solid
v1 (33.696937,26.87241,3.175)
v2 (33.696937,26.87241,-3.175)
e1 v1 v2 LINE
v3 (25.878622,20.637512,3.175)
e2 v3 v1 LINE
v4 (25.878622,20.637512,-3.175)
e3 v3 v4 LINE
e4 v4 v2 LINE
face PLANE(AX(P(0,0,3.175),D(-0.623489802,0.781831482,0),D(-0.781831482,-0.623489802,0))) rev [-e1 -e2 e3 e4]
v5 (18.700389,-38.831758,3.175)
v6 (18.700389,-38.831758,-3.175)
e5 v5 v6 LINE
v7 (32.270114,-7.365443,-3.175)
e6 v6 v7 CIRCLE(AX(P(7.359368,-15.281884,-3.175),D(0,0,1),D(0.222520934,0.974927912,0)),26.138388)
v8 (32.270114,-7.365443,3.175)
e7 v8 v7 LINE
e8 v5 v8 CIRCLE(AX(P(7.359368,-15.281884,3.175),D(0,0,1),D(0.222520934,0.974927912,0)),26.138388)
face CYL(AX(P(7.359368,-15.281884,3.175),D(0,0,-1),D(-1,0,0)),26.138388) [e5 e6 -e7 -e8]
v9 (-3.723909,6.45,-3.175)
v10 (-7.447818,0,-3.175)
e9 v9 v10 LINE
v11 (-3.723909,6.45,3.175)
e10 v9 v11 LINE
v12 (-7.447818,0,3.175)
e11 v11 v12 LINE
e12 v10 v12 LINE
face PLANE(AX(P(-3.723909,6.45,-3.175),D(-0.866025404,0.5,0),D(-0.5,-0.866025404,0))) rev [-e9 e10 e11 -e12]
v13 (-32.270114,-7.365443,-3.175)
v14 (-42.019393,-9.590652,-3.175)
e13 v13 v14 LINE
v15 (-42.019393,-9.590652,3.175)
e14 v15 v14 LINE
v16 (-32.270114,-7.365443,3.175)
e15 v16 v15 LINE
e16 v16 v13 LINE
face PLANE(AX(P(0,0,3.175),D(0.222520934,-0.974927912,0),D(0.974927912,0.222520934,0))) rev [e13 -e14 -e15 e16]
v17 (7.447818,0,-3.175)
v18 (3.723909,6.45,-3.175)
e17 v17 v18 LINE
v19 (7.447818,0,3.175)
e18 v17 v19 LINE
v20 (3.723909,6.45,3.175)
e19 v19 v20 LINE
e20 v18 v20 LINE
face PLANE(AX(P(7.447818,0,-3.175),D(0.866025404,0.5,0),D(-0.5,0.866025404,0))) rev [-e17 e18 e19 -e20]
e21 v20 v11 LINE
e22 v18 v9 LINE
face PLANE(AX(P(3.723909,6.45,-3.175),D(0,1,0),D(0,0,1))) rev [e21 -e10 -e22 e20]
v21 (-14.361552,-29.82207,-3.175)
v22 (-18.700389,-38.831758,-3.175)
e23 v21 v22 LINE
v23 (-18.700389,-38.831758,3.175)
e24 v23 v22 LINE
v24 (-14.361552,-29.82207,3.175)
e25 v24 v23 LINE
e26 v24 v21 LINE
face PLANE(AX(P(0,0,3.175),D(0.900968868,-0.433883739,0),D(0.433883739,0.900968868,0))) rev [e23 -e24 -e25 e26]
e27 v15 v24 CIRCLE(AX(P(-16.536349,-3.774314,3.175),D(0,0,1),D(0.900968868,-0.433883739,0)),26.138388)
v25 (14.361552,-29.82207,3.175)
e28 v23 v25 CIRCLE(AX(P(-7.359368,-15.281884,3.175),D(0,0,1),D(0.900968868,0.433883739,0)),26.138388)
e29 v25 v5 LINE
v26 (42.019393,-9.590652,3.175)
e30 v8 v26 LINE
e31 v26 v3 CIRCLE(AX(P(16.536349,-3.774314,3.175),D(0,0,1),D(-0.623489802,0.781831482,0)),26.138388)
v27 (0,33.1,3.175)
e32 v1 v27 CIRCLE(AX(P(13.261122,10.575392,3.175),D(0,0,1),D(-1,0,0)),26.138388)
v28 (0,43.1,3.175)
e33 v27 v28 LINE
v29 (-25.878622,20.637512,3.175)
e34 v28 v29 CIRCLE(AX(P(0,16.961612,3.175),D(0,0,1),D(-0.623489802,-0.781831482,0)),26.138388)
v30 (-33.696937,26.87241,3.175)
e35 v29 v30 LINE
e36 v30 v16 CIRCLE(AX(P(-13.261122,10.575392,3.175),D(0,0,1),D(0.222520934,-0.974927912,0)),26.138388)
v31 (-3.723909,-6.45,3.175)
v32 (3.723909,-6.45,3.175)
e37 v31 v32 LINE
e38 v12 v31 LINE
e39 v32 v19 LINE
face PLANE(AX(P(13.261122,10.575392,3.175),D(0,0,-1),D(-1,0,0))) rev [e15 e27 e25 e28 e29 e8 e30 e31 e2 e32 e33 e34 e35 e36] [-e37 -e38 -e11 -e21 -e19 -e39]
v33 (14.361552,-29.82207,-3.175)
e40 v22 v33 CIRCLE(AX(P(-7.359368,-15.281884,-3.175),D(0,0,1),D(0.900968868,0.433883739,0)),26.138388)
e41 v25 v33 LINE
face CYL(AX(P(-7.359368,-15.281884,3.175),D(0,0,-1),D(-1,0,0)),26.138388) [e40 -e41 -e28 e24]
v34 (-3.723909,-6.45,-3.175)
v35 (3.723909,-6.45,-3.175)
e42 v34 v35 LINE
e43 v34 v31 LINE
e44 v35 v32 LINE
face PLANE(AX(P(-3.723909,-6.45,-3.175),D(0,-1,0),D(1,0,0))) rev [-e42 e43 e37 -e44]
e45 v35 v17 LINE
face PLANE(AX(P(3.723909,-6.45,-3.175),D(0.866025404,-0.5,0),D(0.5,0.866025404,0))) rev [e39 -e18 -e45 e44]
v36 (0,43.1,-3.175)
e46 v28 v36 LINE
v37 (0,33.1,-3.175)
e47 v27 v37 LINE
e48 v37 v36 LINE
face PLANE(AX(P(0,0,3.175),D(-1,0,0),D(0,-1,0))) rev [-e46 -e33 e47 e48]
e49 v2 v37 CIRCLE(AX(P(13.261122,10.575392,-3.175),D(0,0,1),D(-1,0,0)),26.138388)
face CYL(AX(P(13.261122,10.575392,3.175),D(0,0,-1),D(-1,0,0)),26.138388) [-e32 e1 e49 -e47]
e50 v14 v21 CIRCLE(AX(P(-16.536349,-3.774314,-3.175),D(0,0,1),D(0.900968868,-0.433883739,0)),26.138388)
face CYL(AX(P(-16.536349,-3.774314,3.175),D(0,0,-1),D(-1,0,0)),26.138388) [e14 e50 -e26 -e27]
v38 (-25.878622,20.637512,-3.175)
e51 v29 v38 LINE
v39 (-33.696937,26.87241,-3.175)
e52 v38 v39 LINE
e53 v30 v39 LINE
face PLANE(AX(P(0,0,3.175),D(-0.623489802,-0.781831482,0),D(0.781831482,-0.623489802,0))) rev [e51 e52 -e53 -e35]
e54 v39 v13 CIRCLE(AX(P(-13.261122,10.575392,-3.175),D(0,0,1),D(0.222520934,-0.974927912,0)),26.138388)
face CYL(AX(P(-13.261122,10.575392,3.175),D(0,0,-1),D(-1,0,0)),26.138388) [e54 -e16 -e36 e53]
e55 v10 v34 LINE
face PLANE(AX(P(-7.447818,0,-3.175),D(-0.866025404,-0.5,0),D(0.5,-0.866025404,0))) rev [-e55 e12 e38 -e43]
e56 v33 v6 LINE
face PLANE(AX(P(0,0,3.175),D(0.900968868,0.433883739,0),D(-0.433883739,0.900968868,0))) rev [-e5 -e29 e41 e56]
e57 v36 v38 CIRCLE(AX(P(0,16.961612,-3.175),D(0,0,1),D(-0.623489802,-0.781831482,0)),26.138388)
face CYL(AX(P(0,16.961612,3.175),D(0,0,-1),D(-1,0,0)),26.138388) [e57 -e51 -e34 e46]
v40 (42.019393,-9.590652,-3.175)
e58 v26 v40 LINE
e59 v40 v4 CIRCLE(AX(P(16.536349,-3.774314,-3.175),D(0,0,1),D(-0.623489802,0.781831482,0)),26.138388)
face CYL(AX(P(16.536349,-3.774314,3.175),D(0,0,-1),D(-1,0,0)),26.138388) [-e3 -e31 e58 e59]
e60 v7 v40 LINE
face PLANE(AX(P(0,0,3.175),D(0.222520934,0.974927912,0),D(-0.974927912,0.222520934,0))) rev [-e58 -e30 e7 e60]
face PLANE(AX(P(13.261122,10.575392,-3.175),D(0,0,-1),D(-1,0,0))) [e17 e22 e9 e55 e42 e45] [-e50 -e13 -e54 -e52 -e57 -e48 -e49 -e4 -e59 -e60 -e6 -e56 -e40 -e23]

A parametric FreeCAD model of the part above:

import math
import FreeCAD as App
import Part
import Sketcher
from FreeCAD import Vector
Q = App.Units.Quantity

doc = App.newDocument("Part")
body = doc.addObject("PartDesign::Body", "Body")

# Sketch on XY plane
sketch1 = doc.addObject("Sketcher::SketchObject", "Sketch")
body.addObject(sketch1)
sketch1.AttachmentSupport = (doc.XY_Plane, [""])
sketch1.MapMode = "FlatFace"
sketch1.addGeometry([
    Part.LineSegment(Vector(0, 33.1, 0), Vector(0, 0, 0)),
    Part.LineSegment(Vector(0, 0, 0), Vector(33.696937, 26.87241, 0)),
    Part.ArcOfCircle(Part.Circle(Vector(13.261122, 10.575392, 0), Vector(0, 0, 1), 26.138388), math.radians(38.571429), math.radians(120.486995)),
], False)
sketch1.addConstraint([
    Sketcher.Constraint("Coincident", 0, 2, 1, 1),
    Sketcher.Constraint("Coincident", 1, 2, 2, 1),
    Sketcher.Constraint("Coincident", 2, 2, 0, 1),
    Sketcher.Constraint("Vertical", 0),
    Sketcher.Constraint("Coincident", 0, 2, -1, 1),
    Sketcher.Constraint("DistanceY", 0, 2, 0, 1, 33.1),
    Sketcher.Constraint("Distance", 1, 43.1),
    Sketcher.Constraint("Radius", 2, 26.138388),
    Sketcher.Constraint("DistanceY", -1, 1, 1, 2, 26.87241),
])
pad1 = doc.addObject("PartDesign::Pad", "Pad")
body.addObject(pad1)
pad1.Profile = sketch1
pad1.Length = 6.35
pad1.Midplane = True
doc.recompute()

polarpattern = doc.addObject("PartDesign::PolarPattern", "PolarPattern")
body.addObject(polarpattern)
polarpattern.Originals = [pad1]
polarpattern.Axis = (doc.Z_Axis, [""])
polarpattern.Angle = 360
polarpattern.Occurrences = 7
body.Tip = polarpattern

# Sketch on XY plane
sketch2 = doc.addObject("Sketcher::SketchObject", "Sketch001")
body.addObject(sketch2)
sketch2.AttachmentSupport = (doc.XY_Plane, [""])
sketch2.MapMode = "FlatFace"
sketch2.AttachmentOffset = App.Placement(Vector(0, 0, 3.175), App.Rotation())
sketch2.addGeometry([
    Part.LineSegment(Vector(7.447818, 0, 0), Vector(3.723909, 6.45, 0)),  # 0
    Part.LineSegment(Vector(3.723909, 6.45, 0), Vector(-3.723909, 6.45, 0)),  # 1
    Part.LineSegment(Vector(-3.723909, 6.45, 0), Vector(-7.447818, 0, 0)),  # 2
    Part.LineSegment(Vector(-7.447818, 0, 0), Vector(-3.723909, -6.45, 0)),  # 3
    Part.LineSegment(Vector(-3.723909, -6.45, 0), Vector(3.723909, -6.45, 0)),  # 4
    Part.LineSegment(Vector(3.723909, -6.45, 0), Vector(7.447818, 0, 0)),  # 5
], False)
sketch2.addConstraint([
    Sketcher.Constraint("Coincident", 0, 2, 1, 1),
    Sketcher.Constraint("Coincident", 1, 2, 2, 1),
    Sketcher.Constraint("Coincident", 2, 2, 3, 1),
    Sketcher.Constraint("Coincident", 3, 2, 4, 1),
    Sketcher.Constraint("Coincident", 4, 2, 5, 1),
    Sketcher.Constraint("Coincident", 5, 2, 0, 1),
    Sketcher.Constraint("Horizontal", 1),
    Sketcher.Constraint("Horizontal", 4),
    Sketcher.Constraint("Symmetric", 0, 2, 3, 2, -1, 1),
    Sketcher.Constraint("Symmetric", 2, 2, 5, 2, -1, 1),
    Sketcher.Constraint("PointOnObject", 2, 2, -1),
    Sketcher.Constraint("Parallel", 2, 5),
    Sketcher.Constraint("Vertical", 1, 2, 3, 2),
    Sketcher.Constraint("Angle", 0, Q("120 deg")),
    Sketcher.Constraint("DistanceY", 3, 2, 1, 2, 12.9),
    Sketcher.Constraint("DistanceX", 1, 2, 1, 1, 7.447818),
])
pocket1 = doc.addObject("PartDesign::Pocket", "Pocket")
body.addObject(pocket1)
pocket1.Profile = sketch2
pocket1.Type = "ThroughAll"

doc.recompute()
